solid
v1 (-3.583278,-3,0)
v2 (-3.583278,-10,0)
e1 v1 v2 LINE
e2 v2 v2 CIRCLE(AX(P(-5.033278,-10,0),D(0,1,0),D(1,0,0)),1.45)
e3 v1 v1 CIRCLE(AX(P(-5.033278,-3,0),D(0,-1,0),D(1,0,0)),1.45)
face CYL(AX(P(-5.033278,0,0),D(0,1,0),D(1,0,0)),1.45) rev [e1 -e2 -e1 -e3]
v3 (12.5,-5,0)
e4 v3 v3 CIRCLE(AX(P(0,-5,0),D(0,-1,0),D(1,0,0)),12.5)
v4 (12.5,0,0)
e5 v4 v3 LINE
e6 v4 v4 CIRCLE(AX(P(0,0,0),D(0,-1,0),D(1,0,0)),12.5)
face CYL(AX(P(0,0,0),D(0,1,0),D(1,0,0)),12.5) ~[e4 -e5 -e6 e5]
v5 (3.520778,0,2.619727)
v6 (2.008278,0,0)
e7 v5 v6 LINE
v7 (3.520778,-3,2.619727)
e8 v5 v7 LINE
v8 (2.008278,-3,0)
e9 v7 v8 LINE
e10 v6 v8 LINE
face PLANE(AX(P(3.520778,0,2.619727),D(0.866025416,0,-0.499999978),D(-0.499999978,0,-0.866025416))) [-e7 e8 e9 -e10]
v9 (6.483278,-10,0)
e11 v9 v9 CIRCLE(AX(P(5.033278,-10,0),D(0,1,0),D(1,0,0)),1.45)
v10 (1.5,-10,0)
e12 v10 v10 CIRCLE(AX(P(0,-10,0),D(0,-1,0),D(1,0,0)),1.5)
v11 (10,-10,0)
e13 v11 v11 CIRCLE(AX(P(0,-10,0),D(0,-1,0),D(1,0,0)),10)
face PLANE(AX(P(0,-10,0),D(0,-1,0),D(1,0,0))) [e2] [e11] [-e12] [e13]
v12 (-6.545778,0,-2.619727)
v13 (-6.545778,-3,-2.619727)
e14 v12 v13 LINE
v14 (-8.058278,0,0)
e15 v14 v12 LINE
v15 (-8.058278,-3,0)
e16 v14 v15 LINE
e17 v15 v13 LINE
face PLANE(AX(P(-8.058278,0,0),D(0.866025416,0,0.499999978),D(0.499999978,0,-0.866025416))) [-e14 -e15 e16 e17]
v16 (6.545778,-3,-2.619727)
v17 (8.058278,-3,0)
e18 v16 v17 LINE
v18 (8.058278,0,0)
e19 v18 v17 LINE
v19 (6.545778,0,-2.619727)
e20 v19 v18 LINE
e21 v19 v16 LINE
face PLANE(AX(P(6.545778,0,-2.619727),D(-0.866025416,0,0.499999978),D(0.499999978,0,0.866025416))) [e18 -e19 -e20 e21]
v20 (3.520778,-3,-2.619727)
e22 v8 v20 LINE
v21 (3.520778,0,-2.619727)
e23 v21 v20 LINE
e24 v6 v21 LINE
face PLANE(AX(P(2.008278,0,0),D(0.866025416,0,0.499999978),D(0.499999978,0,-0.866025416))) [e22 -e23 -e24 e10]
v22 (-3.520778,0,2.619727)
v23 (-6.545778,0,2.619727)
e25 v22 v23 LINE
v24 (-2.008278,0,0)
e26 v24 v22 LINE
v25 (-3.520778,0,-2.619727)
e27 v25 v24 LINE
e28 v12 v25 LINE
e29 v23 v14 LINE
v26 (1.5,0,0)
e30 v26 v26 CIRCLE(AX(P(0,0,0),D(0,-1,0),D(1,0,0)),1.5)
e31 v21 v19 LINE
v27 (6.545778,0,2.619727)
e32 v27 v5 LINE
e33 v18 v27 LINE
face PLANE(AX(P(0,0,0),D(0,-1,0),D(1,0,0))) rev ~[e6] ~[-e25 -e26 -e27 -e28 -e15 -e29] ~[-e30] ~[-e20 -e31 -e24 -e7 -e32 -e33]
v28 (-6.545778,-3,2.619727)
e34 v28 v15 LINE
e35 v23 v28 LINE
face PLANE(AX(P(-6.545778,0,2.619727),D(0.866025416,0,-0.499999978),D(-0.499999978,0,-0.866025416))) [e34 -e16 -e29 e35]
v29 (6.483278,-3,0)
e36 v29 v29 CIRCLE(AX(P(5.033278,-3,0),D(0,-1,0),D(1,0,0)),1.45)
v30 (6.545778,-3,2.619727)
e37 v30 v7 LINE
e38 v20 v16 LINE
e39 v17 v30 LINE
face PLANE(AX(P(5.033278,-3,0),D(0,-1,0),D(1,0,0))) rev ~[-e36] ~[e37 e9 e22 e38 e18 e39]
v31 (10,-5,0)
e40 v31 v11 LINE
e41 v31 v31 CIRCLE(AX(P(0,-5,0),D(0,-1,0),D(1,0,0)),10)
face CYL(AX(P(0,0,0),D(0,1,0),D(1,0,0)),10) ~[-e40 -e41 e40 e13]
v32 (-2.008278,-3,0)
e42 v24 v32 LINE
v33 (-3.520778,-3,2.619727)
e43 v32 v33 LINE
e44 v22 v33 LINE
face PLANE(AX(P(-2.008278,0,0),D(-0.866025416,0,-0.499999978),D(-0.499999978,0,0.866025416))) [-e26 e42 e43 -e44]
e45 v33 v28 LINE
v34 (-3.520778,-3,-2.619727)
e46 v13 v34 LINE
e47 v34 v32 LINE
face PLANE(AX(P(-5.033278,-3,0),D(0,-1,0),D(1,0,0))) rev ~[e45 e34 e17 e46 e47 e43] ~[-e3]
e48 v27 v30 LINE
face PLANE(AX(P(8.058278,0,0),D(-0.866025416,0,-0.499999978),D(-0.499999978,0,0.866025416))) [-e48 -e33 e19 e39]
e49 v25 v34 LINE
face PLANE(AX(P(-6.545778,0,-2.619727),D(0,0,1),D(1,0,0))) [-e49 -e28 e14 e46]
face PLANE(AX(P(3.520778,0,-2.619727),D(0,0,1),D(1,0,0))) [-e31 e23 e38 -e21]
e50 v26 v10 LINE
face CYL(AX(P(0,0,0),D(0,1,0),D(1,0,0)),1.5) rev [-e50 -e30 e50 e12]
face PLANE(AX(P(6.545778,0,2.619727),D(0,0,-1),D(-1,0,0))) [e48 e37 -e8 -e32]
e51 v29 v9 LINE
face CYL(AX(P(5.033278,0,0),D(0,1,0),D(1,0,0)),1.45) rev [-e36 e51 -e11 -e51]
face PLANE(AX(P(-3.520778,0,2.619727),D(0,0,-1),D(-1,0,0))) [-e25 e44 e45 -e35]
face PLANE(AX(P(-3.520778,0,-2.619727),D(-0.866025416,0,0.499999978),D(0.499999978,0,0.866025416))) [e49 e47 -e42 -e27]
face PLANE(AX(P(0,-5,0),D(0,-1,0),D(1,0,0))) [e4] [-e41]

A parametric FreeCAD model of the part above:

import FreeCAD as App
import Part
import Sketcher
Q = App.Units.Quantity

doc = App.newDocument("Part")
params = doc.addObject("Spreadsheet::Sheet", "Params")
for row, (alias, value) in enumerate([
    ("sketch1_diameter", "25 mm"),
    ("sketch1_diameter2", "20 mm"),
    ("pad1_length", "5 mm"),
    ("sketch2_diameter", "20 mm"),
    ("sketch2_diameter2", "3 mm"),
    ("pad2_length", "10 mm"),
    ("sketch3_diameter", "2.9 mm"),
    ("pocket1_length", "25 mm"),
    ("sketch4_diameter", "2.9 mm"),
    ("pocket2_length", "25 mm"),
    ("sketch5_diameter", "2.9 mm"),
    ("pocket3_length", "3 mm"),
], start=1):
    params.set(f"A{row}", alias)
    params.set(f"B{row}", "=" + value)
    params.setAlias(f"B{row}", alias)

body = doc.addObject("PartDesign::Body", "Body")

sketch1 = doc.addObject("Sketcher::SketchObject", "Sketch")
body.addObject(sketch1)
sketch1.AttachmentSupport = (doc.XZ_Plane, [""])
sketch1.MapMode = "FlatFace"
sketch1.addGeometry([
    Part.Circle(App.Vector(0, 0, 0), App.Vector(0, 0, 1), 12),
    Part.Circle(App.Vector(0, 0, 0), App.Vector(0, 0, 1), 10),
], False)
sketch1.addConstraint([
    Sketcher.Constraint("Coincident", 0, 3, -1, 1),
    Sketcher.Constraint("Coincident", 1, 3, -1, 1),
    Sketcher.Constraint("Diameter", 0, 25.0),
    Sketcher.Constraint("Diameter", 1, 20.0),
])
sketch1.setExpression("Constraints[2]", "Params.sketch1_diameter")
sketch1.setExpression("Constraints[3]", "Params.sketch1_diameter2")
pad1 = doc.addObject("PartDesign::Pad", "Pad")
body.addObject(pad1)
pad1.Profile = sketch1
pad1.setExpression("Length", "Params.pad1_length")

sketch2 = doc.addObject("Sketcher::SketchObject", "Sketch001")
body.addObject(sketch2)
sketch2.AttachmentSupport = (doc.XZ_Plane, [""])
sketch2.MapMode = "FlatFace"
sketch2.addGeometry([
    Part.Circle(App.Vector(0, 0, 0), App.Vector(0, 0, 1), 10),
    Part.Circle(App.Vector(0, 0, 0), App.Vector(0, 0, 1), 1.5),
], False)
sketch2.addConstraint([
    Sketcher.Constraint("Coincident", 0, 3, -1, 1),
    Sketcher.Constraint("Coincident", 1, 3, -1, 1),
    Sketcher.Constraint("Diameter", 0, 20.0),
    Sketcher.Constraint("Diameter", 1, 3.0),
])
sketch2.setExpression("Constraints[2]", "Params.sketch2_diameter")
sketch2.setExpression("Constraints[3]", "Params.sketch2_diameter2")
pad2 = doc.addObject("PartDesign::Pad", "Pad001")
body.addObject(pad2)
pad2.Profile = sketch2
pad2.setExpression("Length", "Params.pad2_length")

sketch3 = doc.addObject("Sketcher::SketchObject", "Sketch002")
body.addObject(sketch3)
sketch3.AttachmentSupport = (doc.XZ_Plane, [""])
sketch3.MapMode = "FlatFace"
sketch3.addGeometry(Part.Circle(App.Vector(-5, 0, 0), App.Vector(0, 0, 1), 1.4), False)
sketch3.addConstraint([
    Sketcher.Constraint("PointOnObject", 0, 3, -1),
    Sketcher.Constraint("Diameter", 0, 2.9),
    Sketcher.Constraint("DistanceX", 0, 3, -1, 1, 5.033278),
])
sketch3.setExpression("Constraints[1]", "Params.sketch3_diameter")
pocket1 = doc.addObject("PartDesign::Pocket", "Pocket")
body.addObject(pocket1)
pocket1.Profile = sketch3
pocket1.setExpression("Length", "Params.pocket1_length")
pocket1.Reversed = True

sketch4 = doc.addObject("Sketcher::SketchObject", "Sketch003")
body.addObject(sketch4)
sketch4.AttachmentSupport = (doc.XZ_Plane, [""])
sketch4.MapMode = "FlatFace"
sketch4.addGeometry(Part.Circle(App.Vector(5, 0, 0), App.Vector(0, 0, 1), 1.4), False)
sketch4.addConstraint([
    Sketcher.Constraint("PointOnObject", 0, 3, -1),
    Sketcher.Constraint("Diameter", 0, 2.9),
    Sketcher.Constraint("DistanceX", -1, 1, 0, 3, 5.033278),
])
sketch4.setExpression("Constraints[1]", "Params.sketch4_diameter")
pocket2 = doc.addObject("PartDesign::Pocket", "Pocket001")
body.addObject(pocket2)
pocket2.Profile = sketch4
pocket2.setExpression("Length", "Params.pocket2_length")
pocket2.Reversed = True

sketch5 = doc.addObject("Sketcher::SketchObject", "Sketch004")
body.addObject(sketch5)
sketch5.AttachmentSupport = (doc.XZ_Plane, [""])
sketch5.MapMode = "FlatFace"
sketch5.addGeometry([
    Part.LineSegment(App.Vector(-6.5, -2.6, 0), App.Vector(-3.5, -2.6, 0)),
    Part.LineSegment(App.Vector(-3.5, -2.6, 0), App.Vector(-2, 0, 0)),
    Part.LineSegment(App.Vector(-2, 0, 0), App.Vector(-3.5, 2.6, 0)),
    Part.LineSegment(App.Vector(-3.5, 2.6, 0), App.Vector(-6.5, 2.6, 0)),
    Part.LineSegment(App.Vector(-6.5, 2.6, 0), App.Vector(-8.1, 0, 0)),
    Part.LineSegment(App.Vector(-8.1, 0, 0), App.Vector(-6.5, -2.6, 0)),
    Part.Circle(App.Vector(-5, 0, 0), App.Vector(0, 0, 1), 1.4),
    Part.LineSegment(App.Vector(6.5, -2.6, 0), App.Vector(8.1, 0, 0)),
    Part.LineSegment(App.Vector(8.1, 0, 0), App.Vector(6.5, 2.6, 0)),
    Part.LineSegment(App.Vector(6.5, 2.6, 0), App.Vector(3.5, 2.6, 0)),
    Part.LineSegment(App.Vector(3.5, 2.6, 0), App.Vector(2, 0, 0)),
    Part.LineSegment(App.Vector(2, 0, 0), App.Vector(3.5, -2.6, 0)),
    Part.LineSegment(App.Vector(3.5, -2.6, 0), App.Vector(6.5, -2.6, 0)),
    Part.Circle(App.Vector(5, 0, 0), App.Vector(0, 0, 1), 1.4),
], False)
sketch5.addConstraint([
    Sketcher.Constraint("Coincident", 0, 2, 1, 1),
    Sketcher.Constraint("Coincident", 1, 2, 2, 1),
    Sketcher.Constraint("Coincident", 2, 2, 3, 1),
    Sketcher.Constraint("Coincident", 3, 2, 4, 1),
    Sketcher.Constraint("Coincident", 4, 2, 5, 1),
    Sketcher.Constraint("Coincident", 5, 2, 0, 1),
    Sketcher.Constraint("Coincident", 7, 2, 8, 1),
    Sketcher.Constraint("Coincident", 8, 2, 9, 1),
    Sketcher.Constraint("Coincident", 9, 2, 10, 1),
    Sketcher.Constraint("Coincident", 10, 2, 11, 1),
    Sketcher.Constraint("Coincident", 11, 2, 12, 1),
    Sketcher.Constraint("Coincident", 12, 2, 7, 1),
    Sketcher.Constraint("Horizontal", 0),
    Sketcher.Constraint("Horizontal", 3),
    Sketcher.Constraint("Horizontal", 9),
    Sketcher.Constraint("Horizontal", 12),
    Sketcher.Constraint("Equal", 6, 13),
    Sketcher.Constraint("Symmetric", 6, 3, 13, 3, -1, 1),
    Sketcher.Constraint("Symmetric", 4, 2, 7, 2, -1, 1),
    Sketcher.Constraint("Symmetric", 5, 2, 8, 2, -1, 1),
    Sketcher.Constraint("Symmetric", 1, 2, 10, 2, -1, 1),
    Sketcher.Constraint("Symmetric", 2, 2, 11, 2, -1, 1),
    Sketcher.Constraint("Symmetric", 3, 2, 8, 2, -2),
    Sketcher.Constraint("PointOnObject", 6, 3, -1),
    Sketcher.Constraint("PointOnObject", 1, 2, -1),
    Sketcher.Constraint("PointOnObject", 4, 2, -1),
    Sketcher.Constraint("Parallel", 1, 4),
    Sketcher.Constraint("Parallel", 2, 5),
    Sketcher.Constraint("Parallel", 4, 7),
    Sketcher.Constraint("Parallel", 7, 10),
    Sketcher.Constraint("Diameter", 6, 2.9),
    Sketcher.Constraint("Angle", 1, Q("60.000001 deg")),
    Sketcher.Constraint("DistanceX", 0, 1, 0, 2, 3.025),
    Sketcher.Constraint("DistanceX", 4, 2, 1, 2, 6.05),
    Sketcher.Constraint("DistanceX", 6, 3, 1, 2, 3.025),
    Sketcher.Constraint("DistanceX", 0, 2, -1, 1, 3.520778),
])
sketch5.setExpression("Constraints[30]", "Params.sketch5_diameter")
pocket3 = doc.addObject("PartDesign::Pocket", "Pocket002")
body.addObject(pocket3)
pocket3.Profile = sketch5
pocket3.setExpression("Length", "Params.pocket3_length")
pocket3.Reversed = True

doc.recompute()
